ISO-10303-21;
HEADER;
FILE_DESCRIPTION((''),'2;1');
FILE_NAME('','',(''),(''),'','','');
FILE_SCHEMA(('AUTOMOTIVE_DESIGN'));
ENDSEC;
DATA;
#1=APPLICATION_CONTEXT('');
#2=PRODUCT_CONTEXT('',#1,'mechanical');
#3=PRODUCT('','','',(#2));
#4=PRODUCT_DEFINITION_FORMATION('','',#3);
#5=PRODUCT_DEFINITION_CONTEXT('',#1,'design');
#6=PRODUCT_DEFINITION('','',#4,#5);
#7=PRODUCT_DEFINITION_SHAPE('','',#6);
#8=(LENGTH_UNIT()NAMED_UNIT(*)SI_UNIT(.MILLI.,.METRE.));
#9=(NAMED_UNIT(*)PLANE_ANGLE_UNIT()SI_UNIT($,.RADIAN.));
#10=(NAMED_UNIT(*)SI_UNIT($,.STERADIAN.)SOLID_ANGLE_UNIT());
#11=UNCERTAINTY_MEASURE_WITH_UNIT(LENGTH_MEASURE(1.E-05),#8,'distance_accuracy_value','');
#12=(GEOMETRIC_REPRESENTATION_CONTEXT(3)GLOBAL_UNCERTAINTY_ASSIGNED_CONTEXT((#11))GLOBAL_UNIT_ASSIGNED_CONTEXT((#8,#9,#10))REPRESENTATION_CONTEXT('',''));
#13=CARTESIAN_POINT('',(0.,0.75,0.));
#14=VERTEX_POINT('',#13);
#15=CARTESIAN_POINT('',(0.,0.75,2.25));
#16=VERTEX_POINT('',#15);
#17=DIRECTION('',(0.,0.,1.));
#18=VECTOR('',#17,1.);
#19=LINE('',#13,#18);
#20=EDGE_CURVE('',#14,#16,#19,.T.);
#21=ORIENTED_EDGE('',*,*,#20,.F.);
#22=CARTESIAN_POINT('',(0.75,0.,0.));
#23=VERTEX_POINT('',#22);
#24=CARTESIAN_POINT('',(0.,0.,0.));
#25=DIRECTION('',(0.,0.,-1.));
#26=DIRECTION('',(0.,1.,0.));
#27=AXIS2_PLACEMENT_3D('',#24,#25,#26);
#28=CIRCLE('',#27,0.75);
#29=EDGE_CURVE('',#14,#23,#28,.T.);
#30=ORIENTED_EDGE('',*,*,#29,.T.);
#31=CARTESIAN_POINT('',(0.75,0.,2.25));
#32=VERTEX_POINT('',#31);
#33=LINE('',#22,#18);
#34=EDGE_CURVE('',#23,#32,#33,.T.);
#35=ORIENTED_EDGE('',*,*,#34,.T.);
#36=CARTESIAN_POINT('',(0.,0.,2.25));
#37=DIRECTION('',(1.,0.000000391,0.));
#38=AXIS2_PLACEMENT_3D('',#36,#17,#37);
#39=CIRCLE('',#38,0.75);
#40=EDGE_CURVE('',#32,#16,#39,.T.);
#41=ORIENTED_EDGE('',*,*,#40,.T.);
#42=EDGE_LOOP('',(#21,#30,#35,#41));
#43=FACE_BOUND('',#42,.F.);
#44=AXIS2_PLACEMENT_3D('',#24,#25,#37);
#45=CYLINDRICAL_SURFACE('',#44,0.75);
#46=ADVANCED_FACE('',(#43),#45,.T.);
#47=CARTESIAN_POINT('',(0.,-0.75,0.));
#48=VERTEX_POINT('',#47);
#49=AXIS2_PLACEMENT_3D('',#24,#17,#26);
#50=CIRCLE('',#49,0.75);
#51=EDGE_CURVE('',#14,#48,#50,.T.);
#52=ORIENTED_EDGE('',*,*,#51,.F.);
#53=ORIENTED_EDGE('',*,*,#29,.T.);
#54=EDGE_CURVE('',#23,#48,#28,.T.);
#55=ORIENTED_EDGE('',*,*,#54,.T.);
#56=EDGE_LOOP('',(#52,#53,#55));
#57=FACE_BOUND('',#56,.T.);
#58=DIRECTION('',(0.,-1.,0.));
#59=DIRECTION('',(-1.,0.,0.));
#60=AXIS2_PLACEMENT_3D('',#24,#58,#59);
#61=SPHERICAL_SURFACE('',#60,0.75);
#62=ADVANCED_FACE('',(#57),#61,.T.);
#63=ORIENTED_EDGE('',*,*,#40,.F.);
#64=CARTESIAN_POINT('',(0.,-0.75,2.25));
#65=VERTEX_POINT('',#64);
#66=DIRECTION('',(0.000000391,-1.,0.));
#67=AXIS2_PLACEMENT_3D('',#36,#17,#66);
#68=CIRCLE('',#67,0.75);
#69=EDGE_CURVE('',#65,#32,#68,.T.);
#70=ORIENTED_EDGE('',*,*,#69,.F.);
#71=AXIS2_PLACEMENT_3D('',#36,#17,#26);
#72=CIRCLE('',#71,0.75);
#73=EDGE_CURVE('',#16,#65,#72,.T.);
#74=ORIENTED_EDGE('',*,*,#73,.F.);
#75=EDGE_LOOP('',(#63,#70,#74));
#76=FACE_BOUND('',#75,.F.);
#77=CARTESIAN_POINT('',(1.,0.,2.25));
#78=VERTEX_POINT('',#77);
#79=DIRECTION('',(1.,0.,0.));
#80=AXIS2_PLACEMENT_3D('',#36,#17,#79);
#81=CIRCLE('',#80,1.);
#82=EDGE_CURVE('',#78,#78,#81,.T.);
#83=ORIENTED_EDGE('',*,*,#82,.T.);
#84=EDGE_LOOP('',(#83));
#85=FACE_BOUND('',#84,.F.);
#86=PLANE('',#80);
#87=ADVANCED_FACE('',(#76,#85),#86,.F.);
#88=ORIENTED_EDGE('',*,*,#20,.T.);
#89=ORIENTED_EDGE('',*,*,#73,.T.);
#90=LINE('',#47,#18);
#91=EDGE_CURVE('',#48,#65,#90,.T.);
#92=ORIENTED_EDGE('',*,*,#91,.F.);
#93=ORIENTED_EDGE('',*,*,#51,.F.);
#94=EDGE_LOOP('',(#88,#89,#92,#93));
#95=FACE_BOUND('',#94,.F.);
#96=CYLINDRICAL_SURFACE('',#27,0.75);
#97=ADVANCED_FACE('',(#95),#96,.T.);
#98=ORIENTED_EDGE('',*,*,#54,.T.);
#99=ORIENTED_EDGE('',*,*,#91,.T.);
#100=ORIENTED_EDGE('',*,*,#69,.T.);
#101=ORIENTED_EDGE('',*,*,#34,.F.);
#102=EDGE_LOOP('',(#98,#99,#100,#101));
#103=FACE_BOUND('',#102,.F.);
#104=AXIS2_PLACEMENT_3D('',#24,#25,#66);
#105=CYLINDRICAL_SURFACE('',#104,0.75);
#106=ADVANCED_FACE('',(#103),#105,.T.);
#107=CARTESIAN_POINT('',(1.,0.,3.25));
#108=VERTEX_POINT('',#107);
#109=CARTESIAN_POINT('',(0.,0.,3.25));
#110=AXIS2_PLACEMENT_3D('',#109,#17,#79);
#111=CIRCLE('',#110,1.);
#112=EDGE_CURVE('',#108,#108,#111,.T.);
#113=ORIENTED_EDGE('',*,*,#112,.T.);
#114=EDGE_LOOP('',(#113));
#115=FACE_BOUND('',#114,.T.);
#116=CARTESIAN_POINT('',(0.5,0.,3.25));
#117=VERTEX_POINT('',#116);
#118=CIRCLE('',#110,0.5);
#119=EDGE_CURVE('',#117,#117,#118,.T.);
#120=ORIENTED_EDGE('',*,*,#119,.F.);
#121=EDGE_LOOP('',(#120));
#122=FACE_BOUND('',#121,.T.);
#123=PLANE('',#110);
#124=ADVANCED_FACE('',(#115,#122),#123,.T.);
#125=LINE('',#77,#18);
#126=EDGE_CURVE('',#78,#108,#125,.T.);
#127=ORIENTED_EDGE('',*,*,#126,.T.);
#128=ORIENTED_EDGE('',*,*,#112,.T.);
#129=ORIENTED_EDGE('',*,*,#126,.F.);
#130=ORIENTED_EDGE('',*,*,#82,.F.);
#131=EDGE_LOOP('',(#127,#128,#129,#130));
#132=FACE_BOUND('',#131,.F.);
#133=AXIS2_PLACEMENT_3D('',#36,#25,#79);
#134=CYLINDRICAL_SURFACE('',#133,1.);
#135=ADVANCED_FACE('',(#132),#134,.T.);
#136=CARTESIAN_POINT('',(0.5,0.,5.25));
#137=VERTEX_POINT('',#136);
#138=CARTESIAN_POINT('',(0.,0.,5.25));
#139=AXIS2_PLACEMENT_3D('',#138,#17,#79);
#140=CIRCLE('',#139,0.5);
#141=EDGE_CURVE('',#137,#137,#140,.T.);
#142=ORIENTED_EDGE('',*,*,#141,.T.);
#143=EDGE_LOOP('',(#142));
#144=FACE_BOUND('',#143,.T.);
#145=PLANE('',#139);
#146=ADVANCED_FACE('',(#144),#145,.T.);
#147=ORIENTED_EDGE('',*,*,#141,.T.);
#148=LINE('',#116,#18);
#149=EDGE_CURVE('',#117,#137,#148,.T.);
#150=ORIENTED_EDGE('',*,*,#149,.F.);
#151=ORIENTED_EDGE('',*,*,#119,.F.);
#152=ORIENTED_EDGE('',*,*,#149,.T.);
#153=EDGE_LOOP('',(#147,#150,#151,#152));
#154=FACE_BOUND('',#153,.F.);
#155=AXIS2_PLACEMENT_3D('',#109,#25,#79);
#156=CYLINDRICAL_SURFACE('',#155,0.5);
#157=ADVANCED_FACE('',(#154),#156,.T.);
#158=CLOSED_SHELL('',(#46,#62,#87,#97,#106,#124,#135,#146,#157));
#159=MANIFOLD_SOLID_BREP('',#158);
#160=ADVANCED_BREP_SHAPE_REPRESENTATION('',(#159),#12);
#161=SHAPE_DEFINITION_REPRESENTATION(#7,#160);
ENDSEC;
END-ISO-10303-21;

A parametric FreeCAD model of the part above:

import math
import FreeCAD as App
import Part
import Sketcher
Q = App.Units.Quantity

doc = App.newDocument("Part")
body = doc.addObject("PartDesign::Body", "Body")

sketch1 = doc.addObject("Sketcher::SketchObject", "Sketch")
body.addObject(sketch1)
sketch1.AttachmentSupport = (doc.XY_Plane, [""])
sketch1.MapMode = "FlatFace"
sketch1.addGeometry([
    Part.LineSegment(App.Vector(0, -0.8, 0), App.Vector(0, 0.8, 0)),
    Part.ArcOfCircle(Part.Circle(App.Vector(0, 0, 0), App.Vector(0, 0, 1), 0.8), math.radians(90), math.radians(270)),
], False)
sketch1.addConstraint([
    Sketcher.Constraint("Coincident", 0, 1, 1, 2),
    Sketcher.Constraint("Coincident", 1, 1, 0, 2),
    Sketcher.Constraint("Vertical", 0),
    Sketcher.Constraint("Coincident", 1, 3, -1, 1),
    Sketcher.Constraint("PointOnObject", 0, 1, -2),
    Sketcher.Constraint("Radius", 1, Q("0.75 mm")),
])
revolution = doc.addObject("PartDesign::Revolution", "Revolution")
body.addObject(revolution)
revolution.Profile = sketch1
revolution.ReferenceAxis = (sketch1, ["V_Axis"])
revolution.Angle = 180
revolution.Reversed = True

sketch2 = doc.addObject("Sketcher::SketchObject", "Sketch001")
body.addObject(sketch2)
sketch2.AttachmentSupport = (doc.XY_Plane, [""])
sketch2.MapMode = "FlatFace"
sketch2.addGeometry([
    Part.ArcOfCircle(Part.Circle(App.Vector(0, 0, 0), App.Vector(0, 0, 1), 0.8), math.radians(-90), math.radians(0)),
    Part.ArcOfCircle(Part.Circle(App.Vector(0, 0, 0), App.Vector(0, 0, 1), 0.8), math.radians(0), math.radians(90)),
    Part.ArcOfCircle(Part.Circle(App.Vector(0, 0, 0), App.Vector(0, 0, 1), 0.8), math.radians(90), math.radians(270)),
], False)
sketch2.addConstraint([
    Sketcher.Constraint("Tangent", 0, 2, 1, 1),
    Sketcher.Constraint("Tangent", 1, 2, 2, 1),
    Sketcher.Constraint("Tangent", 2, 2, 0, 1),
    Sketcher.Constraint("Coincident", 0, 3, -1, 1),
    Sketcher.Constraint("PointOnObject", 0, 2, -1),
    Sketcher.Constraint("PointOnObject", 1, 2, -2),
    Sketcher.Constraint("PointOnObject", 2, 2, -2),
    Sketcher.Constraint("Radius", 0, Q("0.75 mm")),
])
pad1 = doc.addObject("PartDesign::Pad", "Pad")
body.addObject(pad1)
pad1.Profile = sketch2
pad1.Length = 2.25

sketch3 = doc.addObject("Sketcher::SketchObject", "Sketch002")
body.addObject(sketch3)
sketch3.AttachmentSupport = (doc.XY_Plane, [""])
sketch3.MapMode = "FlatFace"
sketch3.AttachmentOffset = App.Placement(App.Vector(0, 0, 2.25), App.Rotation())
sketch3.addGeometry(Part.Circle(App.Vector(0, 0, 0), App.Vector(0, 0, 1), 1), False)
sketch3.addConstraint([
    Sketcher.Constraint("Coincident", 0, 3, -1, 1),
    Sketcher.Constraint("Diameter", 0, Q("2 mm")),
])
pad2 = doc.addObject("PartDesign::Pad", "Pad001")
body.addObject(pad2)
pad2.Profile = sketch3
pad2.Length = 1

sketch4 = doc.addObject("Sketcher::SketchObject", "Sketch003")
body.addObject(sketch4)
sketch4.AttachmentSupport = (doc.XY_Plane, [""])
sketch4.MapMode = "FlatFace"
sketch4.AttachmentOffset = App.Placement(App.Vector(0, 0, 3.25), App.Rotation())
sketch4.addGeometry(Part.Circle(App.Vector(0, 0, 0), App.Vector(0, 0, 1), 0.5), False)
sketch4.addConstraint([
    Sketcher.Constraint("Coincident", 0, 3, -1, 1),
    Sketcher.Constraint("Diameter", 0, Q("1 mm")),
])
pad3 = doc.addObject("PartDesign::Pad", "Pad002")
body.addObject(pad3)
pad3.Profile = sketch4
pad3.Length = 2

doc.recompute()
